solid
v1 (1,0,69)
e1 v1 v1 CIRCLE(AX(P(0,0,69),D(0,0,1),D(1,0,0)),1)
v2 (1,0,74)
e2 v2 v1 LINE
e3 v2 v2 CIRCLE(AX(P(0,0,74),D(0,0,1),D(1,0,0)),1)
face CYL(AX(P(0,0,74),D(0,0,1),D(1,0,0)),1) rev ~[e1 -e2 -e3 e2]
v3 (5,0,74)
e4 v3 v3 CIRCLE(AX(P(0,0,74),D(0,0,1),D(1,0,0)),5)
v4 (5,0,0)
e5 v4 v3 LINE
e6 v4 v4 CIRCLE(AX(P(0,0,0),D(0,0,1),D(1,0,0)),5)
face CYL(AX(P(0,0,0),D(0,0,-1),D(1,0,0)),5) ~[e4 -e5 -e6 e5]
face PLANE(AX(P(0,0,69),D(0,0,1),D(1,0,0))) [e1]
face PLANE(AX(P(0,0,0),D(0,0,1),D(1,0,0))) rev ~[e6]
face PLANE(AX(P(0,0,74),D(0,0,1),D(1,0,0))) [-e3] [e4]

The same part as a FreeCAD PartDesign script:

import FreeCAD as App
import Part
import Sketcher
from FreeCAD import Vector
Q = App.Units.Quantity

doc = App.newDocument("Part")
body = doc.addObject("PartDesign::Body", "Body")

# Sketch on XY plane
sketch1 = body.newObject("Sketcher::SketchObject", "Sketch")
sketch1.AttachmentSupport = (doc.getObject("XY_Plane"), [""])
sketch1.MapMode = "FlatFace"
sketch1.addGeometry(Part.Circle(Vector(0, 0, 0), Vector(0, 0, 1), 5), False)
sketch1.addConstraint([
    Sketcher.Constraint("Coincident", 0, 3, -1, 1),
    Sketcher.Constraint("Diameter", 0, Q("10 mm")),
])
pad1 = body.newObject("PartDesign::Pad", "Pad")
pad1.Profile = sketch1
pad1.Length = 74

# Sketch on XY plane
sketch2 = body.newObject("Sketcher::SketchObject", "Sketch001")
sketch2.AttachmentSupport = (doc.getObject("XY_Plane"), [""])
sketch2.MapMode = "FlatFace"
sketch2.addGeometry(Part.Circle(Vector(0, 0, 0), Vector(0, 0, 1), 1), False)
sketch2.addConstraint([
    Sketcher.Constraint("Coincident", 0, 3, -1, 1),
    Sketcher.Constraint("Diameter", 0, Q("2 mm")),
])
pocket1 = body.newObject("PartDesign::Pocket", "Pocket")
pocket1.Profile = sketch2
pocket1.Length = 5

# Sketch on XY plane
sketch3 = body.newObject("Sketcher::SketchObject", "Sketch002")
sketch3.AttachmentSupport = (doc.getObject("XY_Plane"), [""])
sketch3.MapMode = "FlatFace"
sketch3.AttachmentOffset = App.Placement(Vector(0, 0, 74), App.Rotation())
sketch3.addGeometry(Part.Circle(Vector(0, 0, 0), Vector(0, 0, 1), 1), False)
sketch3.addConstraint([
    Sketcher.Constraint("Coincident", 0, 3, -1, 1),
    Sketcher.Constraint("Diameter", 0, Q("2 mm")),
])
pocket2 = body.newObject("PartDesign::Pocket", "Pocket001")
pocket2.Profile = sketch3
pocket2.Length = 5

doc.recompute()
